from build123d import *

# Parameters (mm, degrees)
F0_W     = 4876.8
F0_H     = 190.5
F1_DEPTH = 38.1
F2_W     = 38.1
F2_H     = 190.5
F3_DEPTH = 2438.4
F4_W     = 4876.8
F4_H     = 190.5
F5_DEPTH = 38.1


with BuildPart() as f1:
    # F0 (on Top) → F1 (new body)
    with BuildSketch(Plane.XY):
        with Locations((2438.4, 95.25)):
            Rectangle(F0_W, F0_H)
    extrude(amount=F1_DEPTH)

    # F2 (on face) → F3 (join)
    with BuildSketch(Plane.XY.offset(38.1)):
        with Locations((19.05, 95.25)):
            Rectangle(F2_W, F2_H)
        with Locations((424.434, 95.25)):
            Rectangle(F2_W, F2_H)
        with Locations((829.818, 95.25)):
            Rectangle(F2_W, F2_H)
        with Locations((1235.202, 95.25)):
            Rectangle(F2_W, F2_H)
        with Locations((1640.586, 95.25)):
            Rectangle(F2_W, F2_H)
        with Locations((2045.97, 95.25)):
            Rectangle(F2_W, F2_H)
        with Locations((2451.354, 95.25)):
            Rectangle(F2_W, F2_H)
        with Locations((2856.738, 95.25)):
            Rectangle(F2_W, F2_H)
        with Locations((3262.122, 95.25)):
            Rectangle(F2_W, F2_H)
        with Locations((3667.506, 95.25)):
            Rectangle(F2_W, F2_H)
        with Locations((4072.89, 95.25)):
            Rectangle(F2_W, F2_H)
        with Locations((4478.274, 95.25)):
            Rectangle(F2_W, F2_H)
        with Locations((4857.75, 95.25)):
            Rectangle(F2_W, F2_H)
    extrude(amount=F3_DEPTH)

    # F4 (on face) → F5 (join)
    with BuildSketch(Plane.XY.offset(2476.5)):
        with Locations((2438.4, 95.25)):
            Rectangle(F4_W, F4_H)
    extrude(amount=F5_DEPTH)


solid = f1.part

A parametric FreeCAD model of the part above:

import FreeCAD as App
import Part
import Sketcher

V = App.Vector
Q = App.Units.Quantity


def add_polygon(sketch, points):
    """Adds a closed chain of lines whose ends are joined by coincident constraints."""
    first, n = sketch.GeometryCount, len(points)
    for a, b in zip(points, points[1:] + points[:1]):
        sketch.addGeometry(Part.LineSegment(App.Vector(*a, 0), App.Vector(*b, 0)), False)
    for i in range(n):
        sketch.addConstraint(Sketcher.Constraint("Coincident", first + i, 2, first + (i + 1) % n, 1))

doc = App.newDocument("Part")
params = doc.addObject("Spreadsheet::Sheet", "Params")
for row, (alias, value) in enumerate([
    ("sketch1_width", "192 in"),
    ("sketch1_height", "7.5 in"),
    ("pad1_length", "1.5 in"),
    ("sketch2_width", "1.5 in"),
    ("sketch2_height", "7.5 in"),
    ("pad2_length", "96 in"),
    ("sketch3_width", "192 in"),
    ("sketch3_height", "7.5 in"),
    ("pad3_length", "1.5 in"),
], start=1):
    params.set(f"A{row}", alias)
    params.set(f"B{row}", "=" + value)
    params.setAlias(f"B{row}", alias)

body = doc.addObject("PartDesign::Body", "Body")

# Sketch on XY plane
sketch1 = body.newObject("Sketcher::SketchObject", "Sketch")
sketch1.AttachmentSupport = (doc.getObject("XY_Plane"), [""])
sketch1.MapMode = "FlatFace"
add_polygon(sketch1, [(0, 190), (0, 0), (4877, 0), (4877, 190)])  # lines 0-3
sketch1.addConstraint(Sketcher.Constraint("Vertical", 0))
sketch1.addConstraint(Sketcher.Constraint("Horizontal", 1))
sketch1.addConstraint(Sketcher.Constraint("Vertical", 2))
sketch1.addConstraint(Sketcher.Constraint("Horizontal", 3))
sketch1.addConstraint(Sketcher.Constraint("Coincident", 0, 2, -1, 1))
sketch1.addConstraint(Sketcher.Constraint("DistanceX", 1, 1, 1, 2, Q("192 in")))
sketch1.addConstraint(Sketcher.Constraint("DistanceY", 0, 2, 0, 1, Q("7.5 in")))
sketch1.setExpression("Constraints[9]", "Params.sketch1_width")
sketch1.setExpression("Constraints[10]", "Params.sketch1_height")
pad1 = body.newObject("PartDesign::Pad", "Pad")
pad1.Profile = sketch1
pad1.setExpression("Length", "Params.pad1_length")

# Sketch on XY plane
sketch2 = body.newObject("Sketcher::SketchObject", "Sketch001")
sketch2.AttachmentSupport = (doc.getObject("XY_Plane"), [""])
sketch2.MapMode = "FlatFace"
sketch2.AttachmentOffset = App.Placement(V(0, 0, 1.5 * 25.4), App.Rotation())
add_polygon(sketch2, [(0, 190), (0, 0), (38, 0), (38, 190)])  # lines 0-3
add_polygon(sketch2, [(405, 190), (405, 0), (443, 0), (443, 190)])  # lines 4-7
add_polygon(sketch2, [(811, 190), (811, 0), (849, 0), (849, 190)])  # lines 8-11
add_polygon(sketch2, [(1216, 190), (1216, 0), (1254, 0), (1254, 190)])  # lines 12-15
add_polygon(sketch2, [(1622, 190), (1622, 0), (1660, 0), (1660, 190)])  # lines 16-19
add_polygon(sketch2, [(2027, 190), (2027, 0), (2065, 0), (2065, 190)])  # lines 20-23
add_polygon(sketch2, [(2432, 190), (2432, 0), (2470, 0), (2470, 190)])  # lines 24-27
add_polygon(sketch2, [(2838, 190), (2838, 0), (2876, 0), (2876, 190)])  # lines 28-31
add_polygon(sketch2, [(3243, 190), (3243, 0), (3281, 0), (3281, 190)])  # lines 32-35
add_polygon(sketch2, [(3648, 190), (3648, 0), (3687, 0), (3687, 190)])  # lines 36-39
add_polygon(sketch2, [(4054, 190), (4054, 0), (4092, 0), (4092, 190)])  # lines 40-43
add_polygon(sketch2, [(4459, 190), (4459, 0), (4497, 0), (4497, 190)])  # lines 44-47
add_polygon(sketch2, [(4839, 190), (4839, 0), (4877, 0), (4877, 190)])  # lines 48-51
sketch2.addConstraint(Sketcher.Constraint("Vertical", 0))
sketch2.addConstraint(Sketcher.Constraint("Horizontal", 1))
sketch2.addConstraint(Sketcher.Constraint("Vertical", 2))
sketch2.addConstraint(Sketcher.Constraint("Horizontal", 3))
sketch2.addConstraint(Sketcher.Constraint("Vertical", 4))
sketch2.addConstraint(Sketcher.Constraint("Horizontal", 5))
sketch2.addConstraint(Sketcher.Constraint("Vertical", 6))
sketch2.addConstraint(Sketcher.Constraint("Horizontal", 7))
sketch2.addConstraint(Sketcher.Constraint("Vertical", 8))
sketch2.addConstraint(Sketcher.Constraint("Horizontal", 9))
sketch2.addConstraint(Sketcher.Constraint("Vertical", 10))
sketch2.addConstraint(Sketcher.Constraint("Horizontal", 11))
sketch2.addConstraint(Sketcher.Constraint("Vertical", 12))
sketch2.addConstraint(Sketcher.Constraint("Horizontal", 13))
sketch2.addConstraint(Sketcher.Constraint("Vertical", 14))
sketch2.addConstraint(Sketcher.Constraint("Horizontal", 15))
sketch2.addConstraint(Sketcher.Constraint("Vertical", 16))
sketch2.addConstraint(Sketcher.Constraint("Horizontal", 17))
sketch2.addConstraint(Sketcher.Constraint("Vertical", 18))
sketch2.addConstraint(Sketcher.Constraint("Horizontal", 19))
sketch2.addConstraint(Sketcher.Constraint("Vertical", 20))
sketch2.addConstraint(Sketcher.Constraint("Horizontal", 21))
sketch2.addConstraint(Sketcher.Constraint("Vertical", 22))
sketch2.addConstraint(Sketcher.Constraint("Horizontal", 23))
sketch2.addConstraint(Sketcher.Constraint("Vertical", 24))
sketch2.addConstraint(Sketcher.Constraint("Horizontal", 25))
sketch2.addConstraint(Sketcher.Constraint("Vertical", 26))
sketch2.addConstraint(Sketcher.Constraint("Horizontal", 27))
sketch2.addConstraint(Sketcher.Constraint("Vertical", 28))
sketch2.addConstraint(Sketcher.Constraint("Horizontal", 29))
sketch2.addConstraint(Sketcher.Constraint("Vertical", 30))
sketch2.addConstraint(Sketcher.Constraint("Horizontal", 31))
sketch2.addConstraint(Sketcher.Constraint("Vertical", 32))
sketch2.addConstraint(Sketcher.Constraint("Horizontal", 33))
sketch2.addConstraint(Sketcher.Constraint("Vertical", 34))
sketch2.addConstraint(Sketcher.Constraint("Horizontal", 35))
sketch2.addConstraint(Sketcher.Constraint("Vertical", 36))
sketch2.addConstraint(Sketcher.Constraint("Horizontal", 37))
sketch2.addConstraint(Sketcher.Constraint("Vertical", 38))
sketch2.addConstraint(Sketcher.Constraint("Horizontal", 39))
sketch2.addConstraint(Sketcher.Constraint("Vertical", 40))
sketch2.addConstraint(Sketcher.Constraint("Horizontal", 41))
sketch2.addConstraint(Sketcher.Constraint("Vertical", 42))
sketch2.addConstraint(Sketcher.Constraint("Horizontal", 43))
sketch2.addConstraint(Sketcher.Constraint("Vertical", 44))
sketch2.addConstraint(Sketcher.Constraint("Horizontal", 45))
sketch2.addConstraint(Sketcher.Constraint("Vertical", 46))
sketch2.addConstraint(Sketcher.Constraint("Horizontal", 47))
sketch2.addConstraint(Sketcher.Constraint("Vertical", 48))
sketch2.addConstraint(Sketcher.Constraint("Horizontal", 49))
sketch2.addConstraint(Sketcher.Constraint("Vertical", 50))
sketch2.addConstraint(Sketcher.Constraint("Horizontal", 51))
sketch2.addConstraint(Sketcher.Constraint("Coincident", 0, 2, -1, 1))
sketch2.addConstraint(Sketcher.Constraint("PointOnObject", 4, 2, -1))
sketch2.addConstraint(Sketcher.Constraint("PointOnObject", 8, 2, -1))
sketch2.addConstraint(Sketcher.Constraint("PointOnObject", 12, 2, -1))
sketch2.addConstraint(Sketcher.Constraint("PointOnObject", 16, 2, -1))
sketch2.addConstraint(Sketcher.Constraint("PointOnObject", 20, 2, -1))
sketch2.addConstraint(Sketcher.Constraint("PointOnObject", 24, 2, -1))
sketch2.addConstraint(Sketcher.Constraint("PointOnObject", 28, 2, -1))
sketch2.addConstraint(Sketcher.Constraint("PointOnObject", 32, 2, -1))
sketch2.addConstraint(Sketcher.Constraint("PointOnObject", 36, 2, -1))
sketch2.addConstraint(Sketcher.Constraint("PointOnObject", 40, 2, -1))
sketch2.addConstraint(Sketcher.Constraint("PointOnObject", 44, 2, -1))
sketch2.addConstraint(Sketcher.Constraint("PointOnObject", 48, 2, -1))
sketch2.addConstraint(Sketcher.Constraint("Horizontal", 3, 2, 6, 2))
sketch2.addConstraint(Sketcher.Constraint("Horizontal", 7, 2, 10, 2))
sketch2.addConstraint(Sketcher.Constraint("Horizontal", 11, 2, 14, 2))
sketch2.addConstraint(Sketcher.Constraint("Horizontal", 15, 2, 18, 2))
sketch2.addConstraint(Sketcher.Constraint("Horizontal", 19, 2, 22, 2))
sketch2.addConstraint(Sketcher.Constraint("Horizontal", 23, 2, 26, 2))
sketch2.addConstraint(Sketcher.Constraint("Horizontal", 27, 2, 30, 2))
sketch2.addConstraint(Sketcher.Constraint("Horizontal", 31, 2, 34, 2))
sketch2.addConstraint(Sketcher.Constraint("Horizontal", 35, 2, 38, 2))
sketch2.addConstraint(Sketcher.Constraint("Horizontal", 39, 2, 42, 2))
sketch2.addConstraint(Sketcher.Constraint("Horizontal", 43, 2, 46, 2))
sketch2.addConstraint(Sketcher.Constraint("Horizontal", 47, 2, 50, 2))
sketch2.addConstraint(Sketcher.Constraint("Equal", 3, 5))
sketch2.addConstraint(Sketcher.Constraint("Equal", 7, 9))
sketch2.addConstraint(Sketcher.Constraint("Equal", 11, 13))
sketch2.addConstraint(Sketcher.Constraint("Equal", 15, 17))
sketch2.addConstraint(Sketcher.Constraint("Equal", 19, 21))
sketch2.addConstraint(Sketcher.Constraint("Equal", 23, 25))
sketch2.addConstraint(Sketcher.Constraint("Equal", 27, 29))
sketch2.addConstraint(Sketcher.Constraint("Equal", 31, 33))
sketch2.addConstraint(Sketcher.Constraint("Equal", 35, 37))
sketch2.addConstraint(Sketcher.Constraint("Equal", 39, 41))
sketch2.addConstraint(Sketcher.Constraint("Equal", 43, 45))
sketch2.addConstraint(Sketcher.Constraint("Equal", 47, 49))
sketch2.addConstraint(Sketcher.Constraint("DistanceX", 1, 1, 1, 2, Q("1.5 in")))
sketch2.addConstraint(Sketcher.Constraint("DistanceY", 0, 2, 0, 1, Q("7.5 in")))
sketch2.addConstraint(Sketcher.Constraint("DistanceX", -1, 1, 49, 2, Q("192 in")))
sketch2.addConstraint(Sketcher.Constraint("DistanceX", -1, 1, 20, 2, Q("79.8 in")))
sketch2.addConstraint(Sketcher.Constraint("DistanceX", -1, 1, 40, 2, Q("159.6 in")))
sketch2.addConstraint(Sketcher.Constraint("DistanceX", -1, 1, 4, 2, Q("15.96 in")))
sketch2.addConstraint(Sketcher.Constraint("DistanceX", -1, 1, 8, 2, Q("31.92 in")))
sketch2.addConstraint(Sketcher.Constraint("DistanceX", -1, 1, 12, 2, Q("47.88 in")))
sketch2.addConstraint(Sketcher.Constraint("DistanceX", -1, 1, 16, 2, Q("63.84 in")))
sketch2.addConstraint(Sketcher.Constraint("DistanceX", -1, 1, 24, 2, Q("95.76 in")))
sketch2.addConstraint(Sketcher.Constraint("DistanceX", -1, 1, 28, 2, Q("111.72 in")))
sketch2.addConstraint(Sketcher.Constraint("DistanceX", -1, 1, 32, 2, Q("127.68 in")))
sketch2.addConstraint(Sketcher.Constraint("DistanceX", -1, 1, 36, 2, Q("143.64 in")))
sketch2.addConstraint(Sketcher.Constraint("DistanceX", -1, 1, 44, 2, Q("175.56 in")))
sketch2.setExpression("Constraints[141]", "Params.sketch2_width")
sketch2.setExpression("Constraints[142]", "Params.sketch2_height")
pad2 = body.newObject("PartDesign::Pad", "Pad001")
pad2.Profile = sketch2
pad2.setExpression("Length", "Params.pad2_length")

# Sketch on XY plane
sketch3 = body.newObject("Sketcher::SketchObject", "Sketch002")
sketch3.AttachmentSupport = (doc.getObject("XY_Plane"), [""])
sketch3.MapMode = "FlatFace"
sketch3.AttachmentOffset = App.Placement(V(0, 0, 97.5 * 25.4), App.Rotation())
add_polygon(sketch3, [(0, 190), (0, 0), (4877, 0), (4877, 190)])  # lines 0-3
sketch3.addConstraint(Sketcher.Constraint("Vertical", 0))
sketch3.addConstraint(Sketcher.Constraint("Horizontal", 1))
sketch3.addConstraint(Sketcher.Constraint("Vertical", 2))
sketch3.addConstraint(Sketcher.Constraint("Horizontal", 3))
sketch3.addConstraint(Sketcher.Constraint("Coincident", 0, 2, -1, 1))
sketch3.addConstraint(Sketcher.Constraint("DistanceX", 1, 1, 1, 2, Q("192 in")))
sketch3.addConstraint(Sketcher.Constraint("DistanceY", 0, 2, 0, 1, Q("7.5 in")))
sketch3.setExpression("Constraints[9]", "Params.sketch3_width")
sketch3.setExpression("Constraints[10]", "Params.sketch3_height")
pad3 = body.newObject("PartDesign::Pad", "Pad002")
pad3.Profile = sketch3
pad3.setExpression("Length", "Params.pad3_length")

doc.recompute()
